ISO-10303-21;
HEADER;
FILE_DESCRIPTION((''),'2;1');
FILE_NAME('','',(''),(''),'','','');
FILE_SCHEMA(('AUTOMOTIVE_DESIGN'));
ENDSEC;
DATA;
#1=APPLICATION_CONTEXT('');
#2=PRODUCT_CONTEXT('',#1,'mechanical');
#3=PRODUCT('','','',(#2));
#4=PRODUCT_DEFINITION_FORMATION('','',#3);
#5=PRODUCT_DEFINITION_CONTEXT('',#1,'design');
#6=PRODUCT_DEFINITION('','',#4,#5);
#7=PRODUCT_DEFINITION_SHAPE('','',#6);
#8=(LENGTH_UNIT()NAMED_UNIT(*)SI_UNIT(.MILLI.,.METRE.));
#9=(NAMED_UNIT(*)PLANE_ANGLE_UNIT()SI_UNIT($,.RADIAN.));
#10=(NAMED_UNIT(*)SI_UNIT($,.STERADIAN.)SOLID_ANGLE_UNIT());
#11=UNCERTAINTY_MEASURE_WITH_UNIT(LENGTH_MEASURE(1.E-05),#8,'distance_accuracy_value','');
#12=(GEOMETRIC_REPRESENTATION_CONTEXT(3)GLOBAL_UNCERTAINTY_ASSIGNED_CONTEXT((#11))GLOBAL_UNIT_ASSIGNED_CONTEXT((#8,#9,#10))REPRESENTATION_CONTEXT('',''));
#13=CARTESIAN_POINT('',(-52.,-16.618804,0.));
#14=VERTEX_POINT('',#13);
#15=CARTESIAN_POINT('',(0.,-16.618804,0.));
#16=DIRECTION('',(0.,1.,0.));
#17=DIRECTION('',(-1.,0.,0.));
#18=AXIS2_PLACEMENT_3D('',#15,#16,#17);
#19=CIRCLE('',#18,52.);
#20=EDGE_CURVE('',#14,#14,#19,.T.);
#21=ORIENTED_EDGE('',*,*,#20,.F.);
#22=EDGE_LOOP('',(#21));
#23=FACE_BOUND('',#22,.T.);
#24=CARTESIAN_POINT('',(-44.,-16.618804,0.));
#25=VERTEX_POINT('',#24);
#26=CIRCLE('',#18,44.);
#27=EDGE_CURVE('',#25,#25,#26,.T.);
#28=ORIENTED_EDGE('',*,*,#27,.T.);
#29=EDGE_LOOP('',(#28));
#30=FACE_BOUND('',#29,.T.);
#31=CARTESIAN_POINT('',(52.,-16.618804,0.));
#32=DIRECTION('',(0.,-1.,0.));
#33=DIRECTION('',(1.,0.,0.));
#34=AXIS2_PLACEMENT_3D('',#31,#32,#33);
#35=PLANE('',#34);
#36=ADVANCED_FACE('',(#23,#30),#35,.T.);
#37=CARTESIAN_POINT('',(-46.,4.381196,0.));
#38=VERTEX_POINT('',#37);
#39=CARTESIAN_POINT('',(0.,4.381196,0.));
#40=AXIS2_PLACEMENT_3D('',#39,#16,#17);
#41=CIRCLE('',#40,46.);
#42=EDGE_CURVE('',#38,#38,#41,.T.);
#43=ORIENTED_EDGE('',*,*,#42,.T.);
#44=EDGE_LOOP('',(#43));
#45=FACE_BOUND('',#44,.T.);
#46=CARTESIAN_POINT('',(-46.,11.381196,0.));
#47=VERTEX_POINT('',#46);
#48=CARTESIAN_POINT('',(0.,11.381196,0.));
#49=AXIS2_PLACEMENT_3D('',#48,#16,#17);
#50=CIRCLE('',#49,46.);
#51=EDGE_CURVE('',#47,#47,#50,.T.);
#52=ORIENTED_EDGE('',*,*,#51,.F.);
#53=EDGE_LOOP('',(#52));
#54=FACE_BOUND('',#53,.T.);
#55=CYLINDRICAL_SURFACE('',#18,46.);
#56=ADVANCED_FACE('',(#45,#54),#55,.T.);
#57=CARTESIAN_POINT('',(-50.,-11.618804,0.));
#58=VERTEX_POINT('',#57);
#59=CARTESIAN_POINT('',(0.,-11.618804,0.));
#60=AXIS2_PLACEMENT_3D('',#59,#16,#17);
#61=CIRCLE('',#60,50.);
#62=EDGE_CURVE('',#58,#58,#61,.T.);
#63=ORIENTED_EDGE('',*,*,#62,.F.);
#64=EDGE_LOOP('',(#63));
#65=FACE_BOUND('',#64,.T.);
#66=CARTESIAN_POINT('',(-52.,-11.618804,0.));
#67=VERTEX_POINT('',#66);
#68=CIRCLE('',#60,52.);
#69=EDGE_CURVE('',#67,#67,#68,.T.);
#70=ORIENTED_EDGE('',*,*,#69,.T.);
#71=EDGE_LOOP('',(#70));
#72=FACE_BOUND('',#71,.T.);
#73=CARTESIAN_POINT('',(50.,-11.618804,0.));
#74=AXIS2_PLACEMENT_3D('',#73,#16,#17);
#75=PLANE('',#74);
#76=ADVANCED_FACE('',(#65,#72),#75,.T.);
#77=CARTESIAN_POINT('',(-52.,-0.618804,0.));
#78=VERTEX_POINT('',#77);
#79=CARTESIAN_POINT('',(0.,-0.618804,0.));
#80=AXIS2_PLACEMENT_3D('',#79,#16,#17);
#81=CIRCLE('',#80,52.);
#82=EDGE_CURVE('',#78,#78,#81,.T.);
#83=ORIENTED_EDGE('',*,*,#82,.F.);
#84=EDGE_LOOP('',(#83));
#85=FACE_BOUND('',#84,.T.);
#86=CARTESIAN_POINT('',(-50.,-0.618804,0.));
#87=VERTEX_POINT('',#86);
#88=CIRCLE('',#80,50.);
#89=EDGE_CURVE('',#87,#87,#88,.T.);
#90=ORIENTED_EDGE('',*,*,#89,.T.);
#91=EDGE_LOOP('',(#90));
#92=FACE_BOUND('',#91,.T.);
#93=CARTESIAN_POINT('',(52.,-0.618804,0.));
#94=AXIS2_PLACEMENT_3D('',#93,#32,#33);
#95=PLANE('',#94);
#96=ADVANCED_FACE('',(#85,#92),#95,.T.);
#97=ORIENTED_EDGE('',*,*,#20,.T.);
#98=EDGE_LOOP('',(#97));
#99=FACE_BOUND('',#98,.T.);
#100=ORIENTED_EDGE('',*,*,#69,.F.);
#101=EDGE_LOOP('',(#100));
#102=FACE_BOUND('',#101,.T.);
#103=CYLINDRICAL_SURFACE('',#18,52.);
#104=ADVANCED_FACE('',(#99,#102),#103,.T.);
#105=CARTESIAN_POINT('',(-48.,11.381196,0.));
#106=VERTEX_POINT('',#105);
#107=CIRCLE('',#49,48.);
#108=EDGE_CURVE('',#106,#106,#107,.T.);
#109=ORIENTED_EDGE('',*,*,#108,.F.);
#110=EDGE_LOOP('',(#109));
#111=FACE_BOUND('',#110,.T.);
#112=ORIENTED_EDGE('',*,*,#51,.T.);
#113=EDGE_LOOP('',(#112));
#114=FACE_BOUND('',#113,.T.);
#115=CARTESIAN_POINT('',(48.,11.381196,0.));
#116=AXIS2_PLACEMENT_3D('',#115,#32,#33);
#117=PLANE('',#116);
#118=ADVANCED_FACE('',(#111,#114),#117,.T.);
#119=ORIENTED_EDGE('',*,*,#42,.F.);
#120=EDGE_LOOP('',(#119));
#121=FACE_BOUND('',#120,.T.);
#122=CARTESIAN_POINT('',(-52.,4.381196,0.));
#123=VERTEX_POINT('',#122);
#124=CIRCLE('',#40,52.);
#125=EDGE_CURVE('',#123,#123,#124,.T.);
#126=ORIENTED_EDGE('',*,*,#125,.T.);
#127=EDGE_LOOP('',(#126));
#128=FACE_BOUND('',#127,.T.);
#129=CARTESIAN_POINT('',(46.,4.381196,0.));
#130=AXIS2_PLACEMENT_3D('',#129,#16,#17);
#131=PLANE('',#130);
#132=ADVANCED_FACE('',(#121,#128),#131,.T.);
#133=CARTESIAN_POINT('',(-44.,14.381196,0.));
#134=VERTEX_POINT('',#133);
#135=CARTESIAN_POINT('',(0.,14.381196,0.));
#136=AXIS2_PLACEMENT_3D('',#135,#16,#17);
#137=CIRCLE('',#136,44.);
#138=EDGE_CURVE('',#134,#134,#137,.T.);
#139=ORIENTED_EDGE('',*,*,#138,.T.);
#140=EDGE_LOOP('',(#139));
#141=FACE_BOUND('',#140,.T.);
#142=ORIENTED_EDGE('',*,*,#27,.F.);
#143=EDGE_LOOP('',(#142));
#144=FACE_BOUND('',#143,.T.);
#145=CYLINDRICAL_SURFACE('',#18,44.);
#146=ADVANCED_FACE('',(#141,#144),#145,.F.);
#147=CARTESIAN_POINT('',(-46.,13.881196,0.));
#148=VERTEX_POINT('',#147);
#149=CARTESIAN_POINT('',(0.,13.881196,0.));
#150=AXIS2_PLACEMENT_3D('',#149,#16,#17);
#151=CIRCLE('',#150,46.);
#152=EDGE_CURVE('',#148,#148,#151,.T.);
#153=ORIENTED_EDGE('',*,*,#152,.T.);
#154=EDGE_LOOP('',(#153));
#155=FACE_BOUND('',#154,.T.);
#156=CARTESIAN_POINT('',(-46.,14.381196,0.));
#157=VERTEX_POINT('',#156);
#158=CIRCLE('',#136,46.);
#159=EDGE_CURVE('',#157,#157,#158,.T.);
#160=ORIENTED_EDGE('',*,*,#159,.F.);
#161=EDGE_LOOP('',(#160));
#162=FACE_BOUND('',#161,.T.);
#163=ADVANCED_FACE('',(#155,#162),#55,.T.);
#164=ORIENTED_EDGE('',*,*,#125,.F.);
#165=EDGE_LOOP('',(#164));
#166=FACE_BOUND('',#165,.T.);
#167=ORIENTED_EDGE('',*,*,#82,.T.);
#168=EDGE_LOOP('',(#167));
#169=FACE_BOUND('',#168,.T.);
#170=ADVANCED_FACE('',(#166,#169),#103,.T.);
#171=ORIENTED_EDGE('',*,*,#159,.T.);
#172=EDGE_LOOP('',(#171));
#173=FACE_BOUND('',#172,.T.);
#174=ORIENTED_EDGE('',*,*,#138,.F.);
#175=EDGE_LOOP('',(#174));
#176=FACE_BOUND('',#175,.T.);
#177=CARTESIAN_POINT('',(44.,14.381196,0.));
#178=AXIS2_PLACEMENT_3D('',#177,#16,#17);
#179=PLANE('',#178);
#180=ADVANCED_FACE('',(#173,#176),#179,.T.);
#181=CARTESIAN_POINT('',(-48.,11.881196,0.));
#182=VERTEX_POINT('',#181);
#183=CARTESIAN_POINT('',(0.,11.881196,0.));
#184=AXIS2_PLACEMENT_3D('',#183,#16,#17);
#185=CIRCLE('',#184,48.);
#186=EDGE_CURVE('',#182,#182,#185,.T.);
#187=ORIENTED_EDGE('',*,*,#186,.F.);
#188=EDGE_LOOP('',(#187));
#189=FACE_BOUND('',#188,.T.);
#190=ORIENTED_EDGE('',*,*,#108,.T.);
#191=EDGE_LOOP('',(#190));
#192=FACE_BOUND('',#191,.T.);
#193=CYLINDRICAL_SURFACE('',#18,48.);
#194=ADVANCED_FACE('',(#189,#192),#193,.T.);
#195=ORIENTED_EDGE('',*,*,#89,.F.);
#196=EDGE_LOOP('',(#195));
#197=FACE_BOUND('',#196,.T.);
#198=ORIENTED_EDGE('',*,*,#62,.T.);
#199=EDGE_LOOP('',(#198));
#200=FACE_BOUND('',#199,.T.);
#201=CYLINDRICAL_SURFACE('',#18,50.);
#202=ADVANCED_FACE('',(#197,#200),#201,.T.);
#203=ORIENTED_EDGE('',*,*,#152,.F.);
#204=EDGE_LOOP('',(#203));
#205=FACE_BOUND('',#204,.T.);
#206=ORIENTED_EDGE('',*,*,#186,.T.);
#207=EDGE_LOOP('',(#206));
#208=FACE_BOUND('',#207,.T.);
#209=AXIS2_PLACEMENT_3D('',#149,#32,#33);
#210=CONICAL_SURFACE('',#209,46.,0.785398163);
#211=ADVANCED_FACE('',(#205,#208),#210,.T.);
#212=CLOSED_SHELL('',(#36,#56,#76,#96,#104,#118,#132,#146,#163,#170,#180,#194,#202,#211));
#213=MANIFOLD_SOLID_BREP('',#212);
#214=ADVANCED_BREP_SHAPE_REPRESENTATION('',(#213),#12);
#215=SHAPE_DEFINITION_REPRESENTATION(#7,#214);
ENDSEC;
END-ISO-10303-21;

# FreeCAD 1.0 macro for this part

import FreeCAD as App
import Part
import Sketcher
from FreeCAD import Vector
Q = App.Units.Quantity


def add_polygon(sketch, points):
    """Adds a closed chain of lines whose ends are joined by coincident constraints."""
    first, n = sketch.GeometryCount, len(points)
    for a, b in zip(points, points[1:] + points[:1]):
        sketch.addGeometry(Part.LineSegment(App.Vector(*a, 0), App.Vector(*b, 0)), False)
    for i in range(n):
        sketch.addConstraint(Sketcher.Constraint("Coincident", first + i, 2, first + (i + 1) % n, 1))

doc = App.newDocument("Part")
body = doc.addObject("PartDesign::Body", "Body")

sketch1 = body.newObject("Sketcher::SketchObject", "Sketch")
sketch1.AttachmentSupport = (doc.getObject("XY_Plane"), [""])
sketch1.MapMode = "FlatFace"
add_polygon(sketch1, [(46, 11.4), (46, 4.4), (52, 4.4), (52, -0.6), (50, -0.6), (50, -11.6), (52, -11.6), (52, -16.6), (44, -16.6), (44, 14.4), (46, 14.4), (46, 13.9), (48, 11.9), (48, 11.4)])
sketch1.addConstraint([
    Sketcher.Constraint("Vertical", 0),
    Sketcher.Constraint("Horizontal", 1),
    Sketcher.Constraint("Vertical", 2),
    Sketcher.Constraint("Horizontal", 3),
    Sketcher.Constraint("Vertical", 4),
    Sketcher.Constraint("Horizontal", 5),
    Sketcher.Constraint("Vertical", 6),
    Sketcher.Constraint("Horizontal", 7),
    Sketcher.Constraint("Vertical", 8),
    Sketcher.Constraint("Horizontal", 9),
    Sketcher.Constraint("Vertical", 10),
    Sketcher.Constraint("Vertical", 12),
    Sketcher.Constraint("Horizontal", 13),
    Sketcher.Constraint("Vertical", 2, 2, 5, 2),
    Sketcher.Constraint("Vertical", 0, 2, 9, 2),
    Sketcher.Constraint("Equal", 5, 9),
    Sketcher.Constraint("Equal", 9, 13),
    Sketcher.Constraint("Equal", 2, 6),
    Sketcher.Constraint("Equal", 10, 12),
    Sketcher.Constraint("DistanceX", 1, 1, 1, 2, 6.0),
    Sketcher.Constraint("DistanceX", 3, 2, 3, 1, 2.0),
    Sketcher.Constraint("DistanceY", 0, 2, 0, 1, 7.0),
    Sketcher.Constraint("DistanceY", 2, 2, 2, 1, 5.0),
    Sketcher.Constraint("DistanceY", 4, 2, 4, 1, 11.0),
    Sketcher.Constraint("DistanceY", 8, 1, 8, 2, 31.0),
    Sketcher.Constraint("Angle", 11, Q("-45 deg")),
    Sketcher.Constraint("DistanceX", -1, 1, 0, 2, 46.0),
    Sketcher.Constraint("DistanceY", -1, 1, 0, 2, 4.381196),
])
revolution = body.newObject("PartDesign::Revolution", "Revolution")
revolution.Profile = sketch1
revolution.ReferenceAxis = (sketch1, ["V_Axis"])
revolution.Angle = 360

doc.recompute()
